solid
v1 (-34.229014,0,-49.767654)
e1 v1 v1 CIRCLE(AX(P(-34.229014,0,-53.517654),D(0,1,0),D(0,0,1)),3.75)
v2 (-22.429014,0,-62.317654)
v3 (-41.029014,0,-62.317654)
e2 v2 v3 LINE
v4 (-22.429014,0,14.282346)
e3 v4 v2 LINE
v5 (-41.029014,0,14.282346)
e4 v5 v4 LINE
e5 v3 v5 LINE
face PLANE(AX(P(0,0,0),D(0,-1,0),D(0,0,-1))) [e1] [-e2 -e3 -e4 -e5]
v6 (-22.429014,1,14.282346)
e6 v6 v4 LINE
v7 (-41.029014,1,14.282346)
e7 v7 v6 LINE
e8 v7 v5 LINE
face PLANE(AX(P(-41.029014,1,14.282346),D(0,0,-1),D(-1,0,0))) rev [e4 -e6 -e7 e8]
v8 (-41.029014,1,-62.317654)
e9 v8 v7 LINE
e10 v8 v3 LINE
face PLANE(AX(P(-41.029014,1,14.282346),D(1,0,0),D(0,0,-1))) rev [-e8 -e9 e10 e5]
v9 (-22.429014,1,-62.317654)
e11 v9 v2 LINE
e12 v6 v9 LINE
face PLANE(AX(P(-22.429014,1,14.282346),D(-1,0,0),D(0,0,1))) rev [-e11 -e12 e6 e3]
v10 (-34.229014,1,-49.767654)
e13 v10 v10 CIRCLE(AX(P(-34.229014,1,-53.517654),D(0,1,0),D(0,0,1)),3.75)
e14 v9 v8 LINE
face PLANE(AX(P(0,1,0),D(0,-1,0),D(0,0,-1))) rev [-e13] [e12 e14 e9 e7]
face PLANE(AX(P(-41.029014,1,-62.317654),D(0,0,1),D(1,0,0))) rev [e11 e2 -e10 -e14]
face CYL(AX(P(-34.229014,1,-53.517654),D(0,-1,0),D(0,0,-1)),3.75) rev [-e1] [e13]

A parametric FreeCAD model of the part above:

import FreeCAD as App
import Part
import Sketcher
from FreeCAD import Vector

doc = App.newDocument("Part")
body = doc.addObject("PartDesign::Body", "Body")

# Sketch on XZ plane
sketch1 = body.newObject("Sketcher::SketchObject", "Sketch")
sketch1.AttachmentSupport = (doc.getObject("XZ_Plane"), [""])
sketch1.MapMode = "FlatFace"
sketch1.addGeometry(Part.LineSegment(Vector(-41, -62.3, 0), Vector(-41, 14.3, 0)), False)
sketch1.addGeometry(Part.LineSegment(Vector(-41, 14.3, 0), Vector(-22.4, 14.3, 0)), False)
sketch1.addGeometry(Part.LineSegment(Vector(-22.4, 14.3, 0), Vector(-22.4, -62.3, 0)), False)
sketch1.addGeometry(Part.LineSegment(Vector(-22.4, -62.3, 0), Vector(-41, -62.3, 0)), False)
sketch1.addGeometry(Part.Circle(Vector(-34.2, -53.5, 0), Vector(0, 0, 1), 3.8), False)
sketch1.addConstraint(Sketcher.Constraint("Coincident", 0, 2, 1, 1))
sketch1.addConstraint(Sketcher.Constraint("Coincident", 1, 2, 2, 1))
sketch1.addConstraint(Sketcher.Constraint("Coincident", 2, 2, 3, 1))
sketch1.addConstraint(Sketcher.Constraint("Coincident", 3, 2, 0, 1))
sketch1.addConstraint(Sketcher.Constraint("Vertical", 0))
sketch1.addConstraint(Sketcher.Constraint("Horizontal", 1))
sketch1.addConstraint(Sketcher.Constraint("Vertical", 2))
sketch1.addConstraint(Sketcher.Constraint("Horizontal", 3))
sketch1.addConstraint(Sketcher.Constraint("Diameter", 4, 7.5))
sketch1.addConstraint(Sketcher.Constraint("DistanceX", 1, 1, 1, 2, 18.6))
sketch1.addConstraint(Sketcher.Constraint("DistanceY", 0, 1, 0, 2, 76.6))
sketch1.addConstraint(Sketcher.Constraint("DistanceX", 0, 2, 4, 3, 6.8))
sketch1.addConstraint(Sketcher.Constraint("DistanceY", 4, 3, 0, 2, 67.8))
sketch1.addConstraint(Sketcher.Constraint("DistanceX", 4, 3, -1, 1, 34.229014))
sketch1.addConstraint(Sketcher.Constraint("DistanceY", 4, 3, -1, 1, 53.517654))
pad1 = body.newObject("PartDesign::Pad", "Pad")
pad1.Profile = sketch1
pad1.Length = 1
pad1.Reversed = True

doc.recompute()
